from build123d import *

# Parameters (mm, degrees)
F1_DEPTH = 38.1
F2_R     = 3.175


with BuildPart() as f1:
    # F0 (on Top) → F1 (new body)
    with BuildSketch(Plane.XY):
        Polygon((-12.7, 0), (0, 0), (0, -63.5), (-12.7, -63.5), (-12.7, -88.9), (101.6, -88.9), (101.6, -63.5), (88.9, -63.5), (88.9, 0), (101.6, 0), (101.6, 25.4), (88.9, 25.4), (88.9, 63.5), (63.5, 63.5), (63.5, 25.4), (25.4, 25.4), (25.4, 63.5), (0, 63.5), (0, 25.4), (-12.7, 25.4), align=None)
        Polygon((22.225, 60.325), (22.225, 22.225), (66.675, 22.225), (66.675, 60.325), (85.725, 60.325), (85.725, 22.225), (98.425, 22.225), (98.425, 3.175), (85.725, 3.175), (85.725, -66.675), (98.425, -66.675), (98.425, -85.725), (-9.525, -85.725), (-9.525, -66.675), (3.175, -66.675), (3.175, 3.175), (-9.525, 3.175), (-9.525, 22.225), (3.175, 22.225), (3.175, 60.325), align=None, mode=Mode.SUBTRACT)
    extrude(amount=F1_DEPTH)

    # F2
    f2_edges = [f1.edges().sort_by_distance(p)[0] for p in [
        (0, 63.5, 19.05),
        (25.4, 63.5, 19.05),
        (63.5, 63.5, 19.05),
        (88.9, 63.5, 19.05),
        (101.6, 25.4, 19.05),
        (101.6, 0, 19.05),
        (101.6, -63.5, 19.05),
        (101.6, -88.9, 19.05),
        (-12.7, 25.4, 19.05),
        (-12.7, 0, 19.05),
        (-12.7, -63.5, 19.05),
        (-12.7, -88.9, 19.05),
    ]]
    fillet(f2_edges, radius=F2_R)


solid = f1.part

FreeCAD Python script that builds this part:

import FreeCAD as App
import Part
import Sketcher
from FreeCAD import Vector
Q = App.Units.Quantity


def edges_at(feature, points):
    """Names of the edges that pass closest to the given points."""
    edges = feature.Shape.Edges
    near = lambda p: min(range(len(edges)), key=lambda i: edges[i].distToShape(Part.Vertex(*p))[0])
    return sorted({f"Edge{near(p) + 1}" for p in points})

doc = App.newDocument("Part")
params = doc.addObject("Spreadsheet::Sheet", "Params")
for row, (alias, value) in enumerate([
    ("sketch1_width", "1 in"),
    ("sketch1_width2", "0.5 in"),
    ("sketch1_width3", "4.5 in"),
    ("sketch1_width4", "0.75 in"),
    ("sketch1_width5", "1.75 in"),
    ("pad1_length", "1.5 in"),
    ("fillet_radius", "0.125 in"),
], start=1):
    params.set(f"A{row}", alias)
    params.set(f"B{row}", "=" + value)
    params.setAlias(f"B{row}", alias)

body = doc.addObject("PartDesign::Body", "Body")

sketch1 = body.newObject("Sketcher::SketchObject", "Sketch")
sketch1.AttachmentSupport = (doc.getObject("XY_Plane"), [""])
sketch1.MapMode = "FlatFace"
sketch1.addGeometry([
    Part.LineSegment(Vector(-13, 0, 0), Vector(0, 0, 0)),
    Part.LineSegment(Vector(0, 0, 0), Vector(0, -64, 0)),
    Part.LineSegment(Vector(0, -64, 0), Vector(-13, -64, 0)),
    Part.LineSegment(Vector(-13, -64, 0), Vector(-13, -89, 0)),
    Part.LineSegment(Vector(-13, -89, 0), Vector(102, -89, 0)),
    Part.LineSegment(Vector(102, -89, 0), Vector(102, -64, 0)),
    Part.LineSegment(Vector(102, -64, 0), Vector(89, -64, 0)),
    Part.LineSegment(Vector(89, -64, 0), Vector(89, 0, 0)),
    Part.LineSegment(Vector(89, 0, 0), Vector(102, 0, 0)),
    Part.LineSegment(Vector(102, 0, 0), Vector(102, 25, 0)),
    Part.LineSegment(Vector(102, 25, 0), Vector(89, 25, 0)),
    Part.LineSegment(Vector(89, 25, 0), Vector(89, 64, 0)),
    Part.LineSegment(Vector(89, 64, 0), Vector(64, 64, 0)),
    Part.LineSegment(Vector(64, 64, 0), Vector(64, 25, 0)),
    Part.LineSegment(Vector(64, 25, 0), Vector(25, 25, 0)),
    Part.LineSegment(Vector(25, 25, 0), Vector(25, 64, 0)),
    Part.LineSegment(Vector(25, 64, 0), Vector(0, 64, 0)),
    Part.LineSegment(Vector(0, 64, 0), Vector(0, 25, 0)),
    Part.LineSegment(Vector(0, 25, 0), Vector(-13, 25, 0)),
    Part.LineSegment(Vector(-13, 25, 0), Vector(-13, 0, 0)),
    Part.LineSegment(Vector(3, 60, 0), Vector(22, 60, 0)),
    Part.LineSegment(Vector(22, 60, 0), Vector(22, 22, 0)),
    Part.LineSegment(Vector(22, 22, 0), Vector(67, 22, 0)),
    Part.LineSegment(Vector(67, 22, 0), Vector(67, 60, 0)),
    Part.LineSegment(Vector(67, 60, 0), Vector(86, 60, 0)),
    Part.LineSegment(Vector(86, 60, 0), Vector(86, 22, 0)),
    Part.LineSegment(Vector(86, 22, 0), Vector(98, 22, 0)),
    Part.LineSegment(Vector(98, 22, 0), Vector(98, 3, 0)),
    Part.LineSegment(Vector(98, 3, 0), Vector(86, 3, 0)),
    Part.LineSegment(Vector(86, 3, 0), Vector(86, -67, 0)),
    Part.LineSegment(Vector(86, -67, 0), Vector(98, -67, 0)),
    Part.LineSegment(Vector(98, -67, 0), Vector(98, -86, 0)),
    Part.LineSegment(Vector(98, -86, 0), Vector(-10, -86, 0)),
    Part.LineSegment(Vector(-10, -86, 0), Vector(-10, -67, 0)),
    Part.LineSegment(Vector(-10, -67, 0), Vector(3, -67, 0)),
    Part.LineSegment(Vector(3, -67, 0), Vector(3, 3, 0)),
    Part.LineSegment(Vector(3, 3, 0), Vector(-10, 3, 0)),
    Part.LineSegment(Vector(-10, 3, 0), Vector(-10, 22, 0)),
    Part.LineSegment(Vector(-10, 22, 0), Vector(3, 22, 0)),
    Part.LineSegment(Vector(3, 22, 0), Vector(3, 60, 0)),
], False)
sketch1.addConstraint([
    Sketcher.Constraint("Coincident", 0, 2, 1, 1),
    Sketcher.Constraint("Coincident", 1, 2, 2, 1),
    Sketcher.Constraint("Coincident", 2, 2, 3, 1),
    Sketcher.Constraint("Coincident", 3, 2, 4, 1),
    Sketcher.Constraint("Coincident", 4, 2, 5, 1),
    Sketcher.Constraint("Coincident", 5, 2, 6, 1),
    Sketcher.Constraint("Coincident", 6, 2, 7, 1),
    Sketcher.Constraint("Coincident", 7, 2, 8, 1),
    Sketcher.Constraint("Coincident", 8, 2, 9, 1),
    Sketcher.Constraint("Coincident", 9, 2, 10, 1),
    Sketcher.Constraint("Coincident", 10, 2, 11, 1),
    Sketcher.Constraint("Coincident", 11, 2, 12, 1),
    Sketcher.Constraint("Coincident", 12, 2, 13, 1),
    Sketcher.Constraint("Coincident", 13, 2, 14, 1),
    Sketcher.Constraint("Coincident", 14, 2, 15, 1),
    Sketcher.Constraint("Coincident", 15, 2, 16, 1),
    Sketcher.Constraint("Coincident", 16, 2, 17, 1),
    Sketcher.Constraint("Coincident", 17, 2, 18, 1),
    Sketcher.Constraint("Coincident", 18, 2, 19, 1),
    Sketcher.Constraint("Coincident", 19, 2, 0, 1),
    Sketcher.Constraint("Coincident", 20, 2, 21, 1),
    Sketcher.Constraint("Coincident", 21, 2, 22, 1),
    Sketcher.Constraint("Coincident", 22, 2, 23, 1),
    Sketcher.Constraint("Coincident", 23, 2, 24, 1),
    Sketcher.Constraint("Coincident", 24, 2, 25, 1),
    Sketcher.Constraint("Coincident", 25, 2, 26, 1),
    Sketcher.Constraint("Coincident", 26, 2, 27, 1),
    Sketcher.Constraint("Coincident", 27, 2, 28, 1),
    Sketcher.Constraint("Coincident", 28, 2, 29, 1),
    Sketcher.Constraint("Coincident", 29, 2, 30, 1),
    Sketcher.Constraint("Coincident", 30, 2, 31, 1),
    Sketcher.Constraint("Coincident", 31, 2, 32, 1),
    Sketcher.Constraint("Coincident", 32, 2, 33, 1),
    Sketcher.Constraint("Coincident", 33, 2, 34, 1),
    Sketcher.Constraint("Coincident", 34, 2, 35, 1),
    Sketcher.Constraint("Coincident", 35, 2, 36, 1),
    Sketcher.Constraint("Coincident", 36, 2, 37, 1),
    Sketcher.Constraint("Coincident", 37, 2, 38, 1),
    Sketcher.Constraint("Coincident", 38, 2, 39, 1),
    Sketcher.Constraint("Coincident", 39, 2, 20, 1),
    Sketcher.Constraint("Horizontal", 0),
    Sketcher.Constraint("Vertical", 1),
    Sketcher.Constraint("Horizontal", 2),
    Sketcher.Constraint("Vertical", 3),
    Sketcher.Constraint("Horizontal", 4),
    Sketcher.Constraint("Vertical", 5),
    Sketcher.Constraint("Horizontal", 6),
    Sketcher.Constraint("Vertical", 7),
    Sketcher.Constraint("Horizontal", 8),
    Sketcher.Constraint("Vertical", 9),
    Sketcher.Constraint("Horizontal", 10),
    Sketcher.Constraint("Vertical", 11),
    Sketcher.Constraint("Horizontal", 12),
    Sketcher.Constraint("Vertical", 13),
    Sketcher.Constraint("Horizontal", 14),
    Sketcher.Constraint("Vertical", 15),
    Sketcher.Constraint("Horizontal", 16),
    Sketcher.Constraint("Vertical", 17),
    Sketcher.Constraint("Horizontal", 18),
    Sketcher.Constraint("Vertical", 19),
    Sketcher.Constraint("Horizontal", 20),
    Sketcher.Constraint("Vertical", 21),
    Sketcher.Constraint("Horizontal", 22),
    Sketcher.Constraint("Vertical", 23),
    Sketcher.Constraint("Horizontal", 24),
    Sketcher.Constraint("Vertical", 25),
    Sketcher.Constraint("Horizontal", 26),
    Sketcher.Constraint("Vertical", 27),
    Sketcher.Constraint("Horizontal", 28),
    Sketcher.Constraint("Vertical", 29),
    Sketcher.Constraint("Horizontal", 30),
    Sketcher.Constraint("Vertical", 31),
    Sketcher.Constraint("Horizontal", 32),
    Sketcher.Constraint("Vertical", 33),
    Sketcher.Constraint("Horizontal", 34),
    Sketcher.Constraint("Vertical", 35),
    Sketcher.Constraint("Horizontal", 36),
    Sketcher.Constraint("Vertical", 37),
    Sketcher.Constraint("Horizontal", 38),
    Sketcher.Constraint("Vertical", 39),
    Sketcher.Constraint("Coincident", 0, 2, -1, 1),
    Sketcher.Constraint("Symmetric", 1, 2, 16, 2, -1, 1),
    Sketcher.Constraint("Symmetric", 6, 2, 11, 2, -1),
    Sketcher.Constraint("PointOnObject", 7, 2, -1),
    Sketcher.Constraint("Horizontal", 2, 2, 5, 2),
    Sketcher.Constraint("Horizontal", 10, 2, 13, 2),
    Sketcher.Constraint("Horizontal", 14, 2, 17, 2),
    Sketcher.Constraint("Horizontal", 20, 2, 23, 2),
    Sketcher.Constraint("Horizontal", 22, 2, 25, 2),
    Sketcher.Constraint("Horizontal", 30, 2, 33, 2),
    Sketcher.Constraint("Horizontal", 28, 2, 35, 2),
    Sketcher.Constraint("Horizontal", 26, 2, 37, 2),
    Sketcher.Constraint("Vertical", 5, 2, 8, 2),
    Sketcher.Constraint("Vertical", 3, 2, 18, 2),
    Sketcher.Constraint("Vertical", 25, 2, 28, 2),
    Sketcher.Constraint("Vertical", 27, 2, 30, 2),
    Sketcher.Constraint("Vertical", 33, 2, 36, 2),
    Sketcher.Constraint("Vertical", 35, 2, 38, 2),
    Sketcher.Constraint("Equal", 2, 6),
    Sketcher.Constraint("Equal", 12, 16),
    Sketcher.Constraint("Equal", 20, 24),
    Sketcher.Constraint("Equal", 18, 26),
    Sketcher.Constraint("Equal", 30, 34),
    Sketcher.Constraint("Equal", 16, 3),
    Sketcher.Constraint("Equal", 5, 9),
    Sketcher.Constraint("Equal", 14, 11),
    Sketcher.Constraint("Equal", 17, 21),
    Sketcher.Constraint("Equal", 24, 27),
    Sketcher.Constraint("Equal", 27, 31),
    Sketcher.Constraint("DistanceX", 12, 2, 12, 1, Q("1 in")),
    Sketcher.Constraint("DistanceX", 0, 1, 0, 2, Q("0.5 in")),
    Sketcher.Constraint("DistanceX", 4, 1, 4, 2, Q("4.5 in")),
    Sketcher.Constraint("DistanceX", 20, 1, 20, 2, Q("0.75 in")),
    Sketcher.Constraint("DistanceX", 22, 1, 22, 2, Q("1.75 in")),
    Sketcher.Constraint("DistanceY", 29, 2, 29, 1, Q("2.75 in")),
    Sketcher.Constraint("DistanceX", -1, 1, 20, 2, Q("0.875 in")),
    Sketcher.Constraint("DistanceY", -1, 1, 20, 2, Q("2.375 in")),
])
sketch1.setExpression("Constraints[109]", "Params.sketch1_width")
sketch1.setExpression("Constraints[110]", "Params.sketch1_width2")
sketch1.setExpression("Constraints[111]", "Params.sketch1_width3")
sketch1.setExpression("Constraints[112]", "Params.sketch1_width4")
sketch1.setExpression("Constraints[113]", "Params.sketch1_width5")
pad1 = body.newObject("PartDesign::Pad", "Pad")
pad1.Profile = sketch1
pad1.setExpression("Length", "Params.pad1_length")
doc.recompute()

fillet = body.newObject("PartDesign::Fillet", "Fillet")
fillet.Base = (pad1, edges_at(pad1, [
    (0, 63.5, 19.05),
    (25.4, 63.5, 19.05),
    (63.5, 63.5, 19.05),
    (88.9, 63.5, 19.05),
    (101.6, 25.4, 19.05),
    (101.6, 0, 19.05),
    (101.6, -63.5, 19.05),
    (101.6, -88.9, 19.05),
    (-12.7, 25.4, 19.05),
    (-12.7, 0, 19.05),
    (-12.7, -63.5, 19.05),
    (-12.7, -88.9, 19.05),
]))
fillet.setExpression("Radius", "Params.fillet_radius")

doc.recompute()
